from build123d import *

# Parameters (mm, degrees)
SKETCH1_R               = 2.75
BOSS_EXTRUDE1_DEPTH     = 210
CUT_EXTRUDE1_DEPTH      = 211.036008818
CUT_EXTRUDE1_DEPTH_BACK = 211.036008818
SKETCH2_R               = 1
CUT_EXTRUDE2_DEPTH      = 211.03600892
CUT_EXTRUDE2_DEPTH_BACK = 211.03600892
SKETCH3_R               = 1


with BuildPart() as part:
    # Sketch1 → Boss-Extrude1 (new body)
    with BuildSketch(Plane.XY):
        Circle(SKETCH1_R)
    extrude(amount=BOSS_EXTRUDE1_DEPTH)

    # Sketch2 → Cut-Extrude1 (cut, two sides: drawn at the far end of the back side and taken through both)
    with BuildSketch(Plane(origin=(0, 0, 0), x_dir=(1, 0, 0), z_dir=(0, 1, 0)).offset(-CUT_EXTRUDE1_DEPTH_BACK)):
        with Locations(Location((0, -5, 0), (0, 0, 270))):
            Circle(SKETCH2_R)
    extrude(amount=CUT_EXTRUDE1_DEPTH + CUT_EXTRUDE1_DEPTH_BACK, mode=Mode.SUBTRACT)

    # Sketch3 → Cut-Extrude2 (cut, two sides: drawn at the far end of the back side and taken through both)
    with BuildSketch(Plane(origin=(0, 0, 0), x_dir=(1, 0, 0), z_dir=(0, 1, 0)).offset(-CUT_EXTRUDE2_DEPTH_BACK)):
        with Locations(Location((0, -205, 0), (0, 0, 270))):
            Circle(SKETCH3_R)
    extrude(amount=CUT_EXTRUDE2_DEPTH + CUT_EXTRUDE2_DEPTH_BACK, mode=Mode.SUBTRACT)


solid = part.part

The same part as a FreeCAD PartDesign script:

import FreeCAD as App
import Part
import Sketcher
from FreeCAD import Vector
Q = App.Units.Quantity

doc = App.newDocument("Part")
body = doc.addObject("PartDesign::Body", "Body")

# Sketch on XY plane
sketch1 = body.newObject("Sketcher::SketchObject", "Sketch")
sketch1.AttachmentSupport = (doc.getObject("XY_Plane"), [""])
sketch1.MapMode = "FlatFace"
sketch1.addGeometry(Part.Circle(Vector(0, 0, 0), Vector(0, 0, 1), 2.8), False)
sketch1.addConstraint([
    Sketcher.Constraint("Coincident", 0, 3, -1, 1),
    Sketcher.Constraint("Diameter", 0, Q("5.5 mm")),
])
pad1 = body.newObject("PartDesign::Pad", "Pad")
pad1.Profile = sketch1
pad1.Length = 210

# Sketch on XZ plane
sketch2 = body.newObject("Sketcher::SketchObject", "Sketch001")
sketch2.AttachmentSupport = (doc.getObject("XZ_Plane"), [""])
sketch2.MapMode = "FlatFace"
sketch2.addGeometry(Part.Circle(Vector(0, 5, 0), Vector(0, 0, 1), 1), False)
sketch2.addConstraint([
    Sketcher.Constraint("PointOnObject", 0, 3, -2),
    Sketcher.Constraint("Diameter", 0, Q("2 mm")),
    Sketcher.Constraint("DistanceY", -1, 1, 0, 3, Q("5 mm")),
])
pocket1 = body.newObject("PartDesign::Pocket", "Pocket")
pocket1.Profile = sketch2
pocket1.Type = "ThroughAll"
pocket1.Midplane = True

# Sketch on XZ plane
sketch3 = body.newObject("Sketcher::SketchObject", "Sketch002")
sketch3.AttachmentSupport = (doc.getObject("XZ_Plane"), [""])
sketch3.MapMode = "FlatFace"
sketch3.addGeometry(Part.Circle(Vector(0, 205, 0), Vector(0, 0, 1), 1), False)
sketch3.addConstraint([
    Sketcher.Constraint("PointOnObject", 0, 3, -2),
    Sketcher.Constraint("Diameter", 0, Q("2 mm")),
    Sketcher.Constraint("DistanceY", -1, 1, 0, 3, Q("205 mm")),
])
pocket2 = body.newObject("PartDesign::Pocket", "Pocket001")
pocket2.Profile = sketch3
pocket2.Type = "ThroughAll"
pocket2.Midplane = True

doc.recompute()
